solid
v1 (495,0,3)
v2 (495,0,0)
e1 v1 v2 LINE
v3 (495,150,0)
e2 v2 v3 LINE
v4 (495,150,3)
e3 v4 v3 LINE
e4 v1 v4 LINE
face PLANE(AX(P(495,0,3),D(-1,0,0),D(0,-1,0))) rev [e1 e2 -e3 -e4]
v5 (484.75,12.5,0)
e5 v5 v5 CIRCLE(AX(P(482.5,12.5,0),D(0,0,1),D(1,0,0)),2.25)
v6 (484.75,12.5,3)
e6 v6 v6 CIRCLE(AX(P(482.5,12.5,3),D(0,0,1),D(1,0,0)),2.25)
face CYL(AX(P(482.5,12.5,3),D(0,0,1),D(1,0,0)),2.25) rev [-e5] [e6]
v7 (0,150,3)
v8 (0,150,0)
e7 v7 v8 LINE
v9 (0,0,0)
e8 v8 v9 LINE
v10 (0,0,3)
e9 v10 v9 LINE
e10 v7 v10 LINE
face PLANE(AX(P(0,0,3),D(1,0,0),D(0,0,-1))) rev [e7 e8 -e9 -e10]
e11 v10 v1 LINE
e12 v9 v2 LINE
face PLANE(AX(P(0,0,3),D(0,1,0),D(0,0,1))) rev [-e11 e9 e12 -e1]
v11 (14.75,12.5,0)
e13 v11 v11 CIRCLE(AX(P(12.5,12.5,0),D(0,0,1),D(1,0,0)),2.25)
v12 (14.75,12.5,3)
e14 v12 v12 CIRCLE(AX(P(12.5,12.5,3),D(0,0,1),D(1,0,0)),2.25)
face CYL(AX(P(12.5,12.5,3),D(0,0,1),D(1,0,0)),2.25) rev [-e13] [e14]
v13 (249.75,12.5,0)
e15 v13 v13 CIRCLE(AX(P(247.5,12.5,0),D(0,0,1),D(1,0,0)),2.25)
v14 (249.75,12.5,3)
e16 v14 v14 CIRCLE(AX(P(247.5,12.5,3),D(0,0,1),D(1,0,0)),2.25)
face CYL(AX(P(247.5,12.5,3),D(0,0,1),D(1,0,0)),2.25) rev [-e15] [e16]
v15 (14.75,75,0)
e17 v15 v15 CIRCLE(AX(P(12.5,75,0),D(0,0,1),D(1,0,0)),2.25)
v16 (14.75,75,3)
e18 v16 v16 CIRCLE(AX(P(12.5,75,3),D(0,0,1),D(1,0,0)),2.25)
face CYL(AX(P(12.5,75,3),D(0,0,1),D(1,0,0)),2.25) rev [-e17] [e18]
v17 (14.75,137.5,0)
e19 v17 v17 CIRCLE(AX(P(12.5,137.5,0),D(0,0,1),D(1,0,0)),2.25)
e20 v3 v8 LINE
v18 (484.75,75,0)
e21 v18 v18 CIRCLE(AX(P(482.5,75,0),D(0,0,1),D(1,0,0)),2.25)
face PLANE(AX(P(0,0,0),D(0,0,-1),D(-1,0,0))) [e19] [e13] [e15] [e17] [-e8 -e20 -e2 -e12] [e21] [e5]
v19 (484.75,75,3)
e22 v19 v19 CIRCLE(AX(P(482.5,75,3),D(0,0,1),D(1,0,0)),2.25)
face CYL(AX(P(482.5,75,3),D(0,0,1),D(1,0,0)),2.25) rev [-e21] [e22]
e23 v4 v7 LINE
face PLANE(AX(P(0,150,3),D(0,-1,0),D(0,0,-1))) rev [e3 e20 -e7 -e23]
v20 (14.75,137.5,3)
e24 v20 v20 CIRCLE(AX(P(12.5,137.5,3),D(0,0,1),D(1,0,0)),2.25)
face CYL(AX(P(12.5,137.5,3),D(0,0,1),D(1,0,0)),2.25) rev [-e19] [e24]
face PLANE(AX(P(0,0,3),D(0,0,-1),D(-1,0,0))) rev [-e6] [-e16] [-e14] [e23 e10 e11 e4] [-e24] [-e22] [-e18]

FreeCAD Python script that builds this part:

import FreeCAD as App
import Part
import Sketcher

V = App.Vector


def add_polygon(sketch, points):
    """Adds a closed chain of lines whose ends are joined by coincident constraints."""
    first, n = sketch.GeometryCount, len(points)
    for a, b in zip(points, points[1:] + points[:1]):
        sketch.addGeometry(Part.LineSegment(App.Vector(*a, 0), App.Vector(*b, 0)), False)
    for i in range(n):
        sketch.addConstraint(Sketcher.Constraint("Coincident", first + i, 2, first + (i + 1) % n, 1))

doc = App.newDocument("Part")
params = doc.addObject("Spreadsheet::Sheet", "Params")
for row, (alias, value) in enumerate([
    ("sketch1_width", "495 mm"),
    ("sketch1_height", "150 mm"),
    ("pad1_length", "3 mm"),
    ("sketch2_diameter", "4.5 mm"),
    ("hole_diameter", "4.5 mm"),
], start=1):
    params.set(f"A{row}", alias)
    params.set(f"B{row}", "=" + value)
    params.setAlias(f"B{row}", alias)

body = doc.addObject("PartDesign::Body", "Body")

# Sketch on XY plane
sketch1 = body.newObject("Sketcher::SketchObject", "Sketch")
sketch1.AttachmentSupport = (doc.getObject("XY_Plane"), [""])
sketch1.MapMode = "FlatFace"
add_polygon(sketch1, [(0, 150), (0, 0), (495, 0), (495, 150)])  # lines 0-3
sketch1.addConstraint([
    Sketcher.Constraint("Vertical", 0),
    Sketcher.Constraint("Horizontal", 1),
    Sketcher.Constraint("Vertical", 2),
    Sketcher.Constraint("Horizontal", 3),
    Sketcher.Constraint("Coincident", 0, 2, -1, 1),
    Sketcher.Constraint("DistanceX", 1, 1, 1, 2, 495.0),
    Sketcher.Constraint("DistanceY", 0, 2, 0, 1, 150.0),
])
sketch1.setExpression("Constraints[9]", "Params.sketch1_width")
sketch1.setExpression("Constraints[10]", "Params.sketch1_height")
pad1 = body.newObject("PartDesign::Pad", "Pad")
pad1.Profile = sketch1
pad1.setExpression("Length", "Params.pad1_length")

# Sketch on XY plane
sketch2 = body.newObject("Sketcher::SketchObject", "Sketch001")
sketch2.AttachmentSupport = (doc.getObject("XY_Plane"), [""])
sketch2.MapMode = "FlatFace"
sketch2.AttachmentOffset = App.Placement(V(0, 0, 3), App.Rotation())
sketch2.addGeometry([
    Part.Circle(V(12.5, 75, 0), V(0, 0, 1), 2.2),  # 0
    Part.Circle(V(12.5, 137.5, 0), V(0, 0, 1), 2.2),  # 1
    Part.Circle(V(12.5, 12.5, 0), V(0, 0, 1), 2.2),  # 2
    Part.Circle(V(247.5, 12.5, 0), V(0, 0, 1), 2.2),  # 3
    Part.Circle(V(482.5, 12.5, 0), V(0, 0, 1), 2.2),  # 4
    Part.Circle(V(482.5, 75, 0), V(0, 0, 1), 2.2),  # 5
    Part.Circle(V(482.5, 237.5, 0), V(0, 0, 1), 2.2),  # 6
], False)
sketch2.addConstraint([
    Sketcher.Constraint("Equal", 0, 1),
    Sketcher.Constraint("Equal", 1, 2),
    Sketcher.Constraint("Equal", 2, 3),
    Sketcher.Constraint("Equal", 3, 4),
    Sketcher.Constraint("Equal", 4, 5),
    Sketcher.Constraint("Equal", 5, 6),
    Sketcher.Constraint("Horizontal", 2, 3, 3, 3),
    Sketcher.Constraint("Horizontal", 3, 3, 4, 3),
    Sketcher.Constraint("Horizontal", 0, 3, 5, 3),
    Sketcher.Constraint("Vertical", 0, 3, 1, 3),
    Sketcher.Constraint("Vertical", 1, 3, 2, 3),
    Sketcher.Constraint("Vertical", 4, 3, 5, 3),
    Sketcher.Constraint("Vertical", 5, 3, 6, 3),
    Sketcher.Constraint("Diameter", 0, 4.5),
    Sketcher.Constraint("DistanceY", -1, 1, 0, 3, 75.0),
    Sketcher.Constraint("DistanceY", 2, 3, 1, 3, 125.0),
    Sketcher.Constraint("DistanceX", 2, 3, 3, 3, 235.0),
    Sketcher.Constraint("DistanceX", 3, 3, 4, 3, 235.0),
    Sketcher.Constraint("DistanceY", 4, 3, 6, 3, 225.0),
    Sketcher.Constraint("DistanceX", -1, 1, 0, 3, 12.5),
    Sketcher.Constraint("DistanceY", -1, 1, 1, 3, 137.5),
])
sketch2.setExpression("Constraints[13]", "Params.sketch2_diameter")
doc.recompute()
hole = body.newObject("PartDesign::Hole", "Hole")
hole.Profile = sketch2
hole.ThreadType = "None"
hole.setExpression("Diameter", "Params.hole_diameter")
hole.DepthType = "ThroughAll"

doc.recompute()
